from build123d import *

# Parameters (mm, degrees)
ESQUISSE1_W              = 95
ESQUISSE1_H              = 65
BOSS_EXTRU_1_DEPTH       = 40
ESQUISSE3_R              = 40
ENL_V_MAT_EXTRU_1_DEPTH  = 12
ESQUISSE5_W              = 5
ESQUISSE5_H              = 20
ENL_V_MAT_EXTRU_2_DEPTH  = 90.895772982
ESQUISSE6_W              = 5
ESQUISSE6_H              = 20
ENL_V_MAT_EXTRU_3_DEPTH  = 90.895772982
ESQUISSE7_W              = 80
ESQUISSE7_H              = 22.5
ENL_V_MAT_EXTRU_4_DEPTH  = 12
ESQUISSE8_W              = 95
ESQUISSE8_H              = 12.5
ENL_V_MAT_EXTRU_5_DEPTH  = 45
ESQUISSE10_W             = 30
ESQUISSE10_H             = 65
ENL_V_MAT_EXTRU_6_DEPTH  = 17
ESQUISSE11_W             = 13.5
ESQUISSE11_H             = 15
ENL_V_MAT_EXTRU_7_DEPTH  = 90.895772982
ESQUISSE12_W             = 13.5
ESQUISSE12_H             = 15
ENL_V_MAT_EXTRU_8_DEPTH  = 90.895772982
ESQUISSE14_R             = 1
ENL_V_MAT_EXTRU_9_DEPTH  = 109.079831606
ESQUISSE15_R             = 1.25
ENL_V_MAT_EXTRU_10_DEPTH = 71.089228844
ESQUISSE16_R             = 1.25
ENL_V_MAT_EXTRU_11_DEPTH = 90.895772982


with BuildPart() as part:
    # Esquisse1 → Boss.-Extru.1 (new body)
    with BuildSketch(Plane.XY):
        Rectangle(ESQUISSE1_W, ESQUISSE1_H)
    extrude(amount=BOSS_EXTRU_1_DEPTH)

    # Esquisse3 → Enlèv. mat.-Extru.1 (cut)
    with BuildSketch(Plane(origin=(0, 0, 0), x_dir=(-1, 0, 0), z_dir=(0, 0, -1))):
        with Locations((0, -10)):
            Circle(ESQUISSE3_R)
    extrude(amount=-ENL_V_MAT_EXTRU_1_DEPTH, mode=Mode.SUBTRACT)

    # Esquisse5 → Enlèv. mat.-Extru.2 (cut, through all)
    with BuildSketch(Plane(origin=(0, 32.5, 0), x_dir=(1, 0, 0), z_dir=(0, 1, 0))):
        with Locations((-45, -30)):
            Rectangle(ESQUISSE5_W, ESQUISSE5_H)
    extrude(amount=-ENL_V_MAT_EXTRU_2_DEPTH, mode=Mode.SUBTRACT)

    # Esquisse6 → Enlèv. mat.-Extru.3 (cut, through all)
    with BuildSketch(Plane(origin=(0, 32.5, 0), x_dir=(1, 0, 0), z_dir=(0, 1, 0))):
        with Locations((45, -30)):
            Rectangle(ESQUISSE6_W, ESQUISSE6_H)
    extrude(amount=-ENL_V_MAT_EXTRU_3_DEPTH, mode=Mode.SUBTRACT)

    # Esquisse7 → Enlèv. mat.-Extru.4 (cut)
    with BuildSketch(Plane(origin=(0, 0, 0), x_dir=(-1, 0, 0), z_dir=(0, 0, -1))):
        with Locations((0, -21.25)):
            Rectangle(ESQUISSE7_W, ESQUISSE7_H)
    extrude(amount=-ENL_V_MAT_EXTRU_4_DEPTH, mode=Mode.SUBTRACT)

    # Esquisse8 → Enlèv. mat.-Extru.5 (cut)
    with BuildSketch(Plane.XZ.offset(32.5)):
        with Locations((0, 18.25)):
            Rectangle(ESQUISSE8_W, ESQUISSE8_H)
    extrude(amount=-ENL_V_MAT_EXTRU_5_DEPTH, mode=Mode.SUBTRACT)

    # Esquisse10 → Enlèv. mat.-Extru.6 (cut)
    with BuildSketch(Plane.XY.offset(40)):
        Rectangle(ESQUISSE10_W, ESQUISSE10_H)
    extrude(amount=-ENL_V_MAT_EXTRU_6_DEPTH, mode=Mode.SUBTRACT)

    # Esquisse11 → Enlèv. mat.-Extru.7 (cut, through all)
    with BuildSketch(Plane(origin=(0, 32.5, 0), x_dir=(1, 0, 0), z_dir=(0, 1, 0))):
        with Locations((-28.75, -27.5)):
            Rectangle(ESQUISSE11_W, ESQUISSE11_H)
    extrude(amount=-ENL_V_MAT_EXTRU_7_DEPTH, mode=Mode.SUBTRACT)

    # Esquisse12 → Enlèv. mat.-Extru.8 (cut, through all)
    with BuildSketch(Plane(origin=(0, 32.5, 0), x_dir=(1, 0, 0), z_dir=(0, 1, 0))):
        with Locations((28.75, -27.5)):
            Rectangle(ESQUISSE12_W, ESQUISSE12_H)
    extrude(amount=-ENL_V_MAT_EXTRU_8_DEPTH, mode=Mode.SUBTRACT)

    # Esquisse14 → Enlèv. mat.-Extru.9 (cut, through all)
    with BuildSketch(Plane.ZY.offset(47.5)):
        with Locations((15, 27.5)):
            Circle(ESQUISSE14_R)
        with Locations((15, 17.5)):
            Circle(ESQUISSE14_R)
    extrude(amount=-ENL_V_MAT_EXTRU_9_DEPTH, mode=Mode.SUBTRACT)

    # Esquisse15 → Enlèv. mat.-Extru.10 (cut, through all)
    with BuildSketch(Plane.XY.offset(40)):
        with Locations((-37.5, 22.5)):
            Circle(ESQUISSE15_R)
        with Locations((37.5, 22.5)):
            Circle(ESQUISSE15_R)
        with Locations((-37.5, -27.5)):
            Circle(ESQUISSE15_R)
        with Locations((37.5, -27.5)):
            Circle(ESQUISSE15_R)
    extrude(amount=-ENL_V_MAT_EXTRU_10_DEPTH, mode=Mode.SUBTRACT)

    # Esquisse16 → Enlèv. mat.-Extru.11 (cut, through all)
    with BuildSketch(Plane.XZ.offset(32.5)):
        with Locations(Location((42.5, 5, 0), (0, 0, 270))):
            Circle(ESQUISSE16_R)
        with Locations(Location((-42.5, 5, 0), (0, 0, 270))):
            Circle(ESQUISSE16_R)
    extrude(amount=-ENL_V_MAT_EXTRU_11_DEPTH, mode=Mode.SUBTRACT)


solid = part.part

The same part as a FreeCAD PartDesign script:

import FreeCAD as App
import Part
import Sketcher
Q = App.Units.Quantity

doc = App.newDocument("Part")
params = doc.addObject("Spreadsheet::Sheet", "Params")
for row, (alias, value) in enumerate([
    ("sketch1_width", "95 mm"),
    ("sketch1_height", "65 mm"),
    ("pad1_length", "40 mm"),
    ("sketch2_diameter", "80 mm"),
    ("pocket1_length", "12 mm"),
    ("sketch3_width", "5 mm"),
    ("sketch3_height", "20 mm"),
    ("sketch4_width", "5 mm"),
    ("sketch4_height", "20 mm"),
    ("sketch5_width", "80 mm"),
    ("sketch5_height", "22.5 mm"),
    ("pocket4_length", "12 mm"),
    ("sketch6_width", "95 mm"),
    ("sketch6_height", "12.5 mm"),
    ("pocket5_length", "45 mm"),
    ("sketch7_width", "30 mm"),
    ("sketch7_height", "65 mm"),
    ("pocket6_length", "17 mm"),
    ("sketch8_height", "15 mm"),
    ("sketch8_width", "13.5 mm"),
    ("sketch9_height", "15 mm"),
    ("sketch9_width", "13.5 mm"),
    ("sketch10_diameter", "2 mm"),
    ("sketch11_diameter", "2.5 mm"),
    ("sketch12_diameter", "2.5 mm"),
], start=1):
    params.set(f"A{row}", alias)
    params.set(f"B{row}", "=" + value)
    params.setAlias(f"B{row}", alias)

body = doc.addObject("PartDesign::Body", "Body")

sketch1 = doc.addObject("Sketcher::SketchObject", "Sketch")
body.addObject(sketch1)
sketch1.AttachmentSupport = (doc.XY_Plane, [""])
sketch1.MapMode = "FlatFace"
sketch1.addGeometry(Part.LineSegment(App.Vector(-48, 32, 0), App.Vector(-48, -32, 0)), False)
sketch1.addGeometry(Part.LineSegment(App.Vector(-48, -32, 0), App.Vector(48, -32, 0)), False)
sketch1.addGeometry(Part.LineSegment(App.Vector(48, -32, 0), App.Vector(48, 32, 0)), False)
sketch1.addGeometry(Part.LineSegment(App.Vector(48, 32, 0), App.Vector(-48, 32, 0)), False)
sketch1.addConstraint(Sketcher.Constraint("Coincident", 0, 2, 1, 1))
sketch1.addConstraint(Sketcher.Constraint("Coincident", 1, 2, 2, 1))
sketch1.addConstraint(Sketcher.Constraint("Coincident", 2, 2, 3, 1))
sketch1.addConstraint(Sketcher.Constraint("Coincident", 3, 2, 0, 1))
sketch1.addConstraint(Sketcher.Constraint("Vertical", 0))
sketch1.addConstraint(Sketcher.Constraint("Horizontal", 1))
sketch1.addConstraint(Sketcher.Constraint("Vertical", 2))
sketch1.addConstraint(Sketcher.Constraint("Horizontal", 3))
sketch1.addConstraint(Sketcher.Constraint("Symmetric", 0, 2, 2, 2, -1, 1))
sketch1.addConstraint(Sketcher.Constraint("DistanceX", 1, 1, 1, 2, Q("95 mm")))
sketch1.addConstraint(Sketcher.Constraint("DistanceY", 0, 2, 0, 1, Q("65 mm")))
sketch1.setExpression("Constraints[9]", "Params.sketch1_width")
sketch1.setExpression("Constraints[10]", "Params.sketch1_height")
pad1 = doc.addObject("PartDesign::Pad", "Pad")
body.addObject(pad1)
pad1.Profile = sketch1
pad1.setExpression("Length", "Params.pad1_length")

sketch2 = doc.addObject("Sketcher::SketchObject", "Sketch001")
body.addObject(sketch2)
sketch2.AttachmentSupport = (doc.XY_Plane, [""])
sketch2.MapMode = "FlatFace"
sketch2.addGeometry(Part.Circle(App.Vector(0, -10, 0), App.Vector(0, 0, 1), 40), False)
sketch2.addConstraint(Sketcher.Constraint("PointOnObject", 0, 3, -2))
sketch2.addConstraint(Sketcher.Constraint("Diameter", 0, Q("80 mm")))
sketch2.addConstraint(Sketcher.Constraint("DistanceY", 0, 3, -1, 1, Q("10 mm")))
sketch2.setExpression("Constraints[1]", "Params.sketch2_diameter")
pocket1 = doc.addObject("PartDesign::Pocket", "Pocket")
body.addObject(pocket1)
pocket1.Profile = sketch2
pocket1.setExpression("Length", "Params.pocket1_length")
pocket1.Reversed = True

sketch3 = doc.addObject("Sketcher::SketchObject", "Sketch002")
body.addObject(sketch3)
sketch3.AttachmentSupport = (doc.XZ_Plane, [""])
sketch3.MapMode = "FlatFace"
sketch3.AttachmentOffset = App.Placement(App.Vector(0, 0, -32.5), App.Rotation())
sketch3.addGeometry(Part.LineSegment(App.Vector(-48, 20, 0), App.Vector(-48, 40, 0)), False)
sketch3.addGeometry(Part.LineSegment(App.Vector(-48, 40, 0), App.Vector(-42, 40, 0)), False)
sketch3.addGeometry(Part.LineSegment(App.Vector(-42, 40, 0), App.Vector(-42, 20, 0)), False)
sketch3.addGeometry(Part.LineSegment(App.Vector(-42, 20, 0), App.Vector(-48, 20, 0)), False)
sketch3.addConstraint(Sketcher.Constraint("Coincident", 0, 2, 1, 1))
sketch3.addConstraint(Sketcher.Constraint("Coincident", 1, 2, 2, 1))
sketch3.addConstraint(Sketcher.Constraint("Coincident", 2, 2, 3, 1))
sketch3.addConstraint(Sketcher.Constraint("Coincident", 3, 2, 0, 1))
sketch3.addConstraint(Sketcher.Constraint("Vertical", 0))
sketch3.addConstraint(Sketcher.Constraint("Horizontal", 1))
sketch3.addConstraint(Sketcher.Constraint("Vertical", 2))
sketch3.addConstraint(Sketcher.Constraint("Horizontal", 3))
sketch3.addConstraint(Sketcher.Constraint("DistanceX", 1, 1, 1, 2, Q("5 mm")))
sketch3.addConstraint(Sketcher.Constraint("DistanceY", 0, 1, 0, 2, Q("20 mm")))
sketch3.addConstraint(Sketcher.Constraint("DistanceY", -1, 1, 0, 2, Q("40 mm")))
sketch3.addConstraint(Sketcher.Constraint("DistanceX", 0, 2, -1, 1, Q("47.5 mm")))
sketch3.setExpression("Constraints[8]", "Params.sketch3_width")
sketch3.setExpression("Constraints[9]", "Params.sketch3_height")
pocket2 = doc.addObject("PartDesign::Pocket", "Pocket001")
body.addObject(pocket2)
pocket2.Profile = sketch3
pocket2.Type = "ThroughAll"
pocket2.Reversed = True

sketch4 = doc.addObject("Sketcher::SketchObject", "Sketch003")
body.addObject(sketch4)
sketch4.AttachmentSupport = (doc.XZ_Plane, [""])
sketch4.MapMode = "FlatFace"
sketch4.AttachmentOffset = App.Placement(App.Vector(0, 0, -32.5), App.Rotation())
sketch4.addGeometry(Part.LineSegment(App.Vector(42, 20, 0), App.Vector(42, 40, 0)), False)
sketch4.addGeometry(Part.LineSegment(App.Vector(42, 40, 0), App.Vector(48, 40, 0)), False)
sketch4.addGeometry(Part.LineSegment(App.Vector(48, 40, 0), App.Vector(48, 20, 0)), False)
sketch4.addGeometry(Part.LineSegment(App.Vector(48, 20, 0), App.Vector(42, 20, 0)), False)
sketch4.addConstraint(Sketcher.Constraint("Coincident", 0, 2, 1, 1))
sketch4.addConstraint(Sketcher.Constraint("Coincident", 1, 2, 2, 1))
sketch4.addConstraint(Sketcher.Constraint("Coincident", 2, 2, 3, 1))
sketch4.addConstraint(Sketcher.Constraint("Coincident", 3, 2, 0, 1))
sketch4.addConstraint(Sketcher.Constraint("Vertical", 0))
sketch4.addConstraint(Sketcher.Constraint("Horizontal", 1))
sketch4.addConstraint(Sketcher.Constraint("Vertical", 2))
sketch4.addConstraint(Sketcher.Constraint("Horizontal", 3))
sketch4.addConstraint(Sketcher.Constraint("DistanceX", 1, 1, 1, 2, Q("5 mm")))
sketch4.addConstraint(Sketcher.Constraint("DistanceY", 0, 1, 0, 2, Q("20 mm")))
sketch4.addConstraint(Sketcher.Constraint("DistanceY", -1, 1, 0, 2, Q("40 mm")))
sketch4.addConstraint(Sketcher.Constraint("DistanceX", -1, 1, 0, 2, Q("42.5 mm")))
sketch4.setExpression("Constraints[8]", "Params.sketch4_width")
sketch4.setExpression("Constraints[9]", "Params.sketch4_height")
pocket3 = doc.addObject("PartDesign::Pocket", "Pocket002")
body.addObject(pocket3)
pocket3.Profile = sketch4
pocket3.Type = "ThroughAll"
pocket3.Reversed = True

sketch5 = doc.addObject("Sketcher::SketchObject", "Sketch004")
body.addObject(sketch5)
sketch5.AttachmentSupport = (doc.XY_Plane, [""])
sketch5.MapMode = "FlatFace"
sketch5.addGeometry(Part.LineSegment(App.Vector(40, -10, 0), App.Vector(40, -32, 0)), False)
sketch5.addGeometry(Part.LineSegment(App.Vector(40, -32, 0), App.Vector(-40, -32, 0)), False)
sketch5.addGeometry(Part.LineSegment(App.Vector(-40, -32, 0), App.Vector(-40, -10, 0)), False)
sketch5.addGeometry(Part.LineSegment(App.Vector(-40, -10, 0), App.Vector(40, -10, 0)), False)
sketch5.addConstraint(Sketcher.Constraint("Coincident", 0, 2, 1, 1))
sketch5.addConstraint(Sketcher.Constraint("Coincident", 1, 2, 2, 1))
sketch5.addConstraint(Sketcher.Constraint("Coincident", 2, 2, 3, 1))
sketch5.addConstraint(Sketcher.Constraint("Coincident", 3, 2, 0, 1))
sketch5.addConstraint(Sketcher.Constraint("Vertical", 0))
sketch5.addConstraint(Sketcher.Constraint("Horizontal", 1))
sketch5.addConstraint(Sketcher.Constraint("Vertical", 2))
sketch5.addConstraint(Sketcher.Constraint("Horizontal", 3))
sketch5.addConstraint(Sketcher.Constraint("DistanceX", 1, 2, 1, 1, Q("80 mm")))
sketch5.addConstraint(Sketcher.Constraint("DistanceY", 0, 2, 0, 1, Q("22.5 mm")))
sketch5.addConstraint(Sketcher.Constraint("DistanceX", -1, 1, 0, 2, Q("40 mm")))
sketch5.addConstraint(Sketcher.Constraint("DistanceY", 2, 2, -1, 1, Q("10 mm")))
sketch5.setExpression("Constraints[8]", "Params.sketch5_width")
sketch5.setExpression("Constraints[9]", "Params.sketch5_height")
pocket4 = doc.addObject("PartDesign::Pocket", "Pocket003")
body.addObject(pocket4)
pocket4.Profile = sketch5
pocket4.setExpression("Length", "Params.pocket4_length")
pocket4.Reversed = True

sketch6 = doc.addObject("Sketcher::SketchObject", "Sketch005")
body.addObject(sketch6)
sketch6.AttachmentSupport = (doc.XZ_Plane, [""])
sketch6.MapMode = "FlatFace"
sketch6.AttachmentOffset = App.Placement(App.Vector(0, 0, 32.5), App.Rotation())
sketch6.addGeometry(Part.LineSegment(App.Vector(-48, 24, 0), App.Vector(-48, 12, 0)), False)
sketch6.addGeometry(Part.LineSegment(App.Vector(-48, 12, 0), App.Vector(48, 12, 0)), False)
sketch6.addGeometry(Part.LineSegment(App.Vector(48, 12, 0), App.Vector(48, 24, 0)), False)
sketch6.addGeometry(Part.LineSegment(App.Vector(48, 24, 0), App.Vector(-48, 24, 0)), False)
sketch6.addConstraint(Sketcher.Constraint("Coincident", 0, 2, 1, 1))
sketch6.addConstraint(Sketcher.Constraint("Coincident", 1, 2, 2, 1))
sketch6.addConstraint(Sketcher.Constraint("Coincident", 2, 2, 3, 1))
sketch6.addConstraint(Sketcher.Constraint("Coincident", 3, 2, 0, 1))
sketch6.addConstraint(Sketcher.Constraint("Vertical", 0))
sketch6.addConstraint(Sketcher.Constraint("Horizontal", 1))
sketch6.addConstraint(Sketcher.Constraint("Vertical", 2))
sketch6.addConstraint(Sketcher.Constraint("Horizontal", 3))
sketch6.addConstraint(Sketcher.Constraint("DistanceX", 1, 1, 1, 2, Q("95 mm")))
sketch6.addConstraint(Sketcher.Constraint("DistanceY", 0, 2, 0, 1, Q("12.5 mm")))
sketch6.addConstraint(Sketcher.Constraint("DistanceY", -1, 1, 0, 2, Q("12 mm")))
sketch6.addConstraint(Sketcher.Constraint("DistanceX", 0, 2, -1, 1, Q("47.5 mm")))
sketch6.setExpression("Constraints[8]", "Params.sketch6_width")
sketch6.setExpression("Constraints[9]", "Params.sketch6_height")
pocket5 = doc.addObject("PartDesign::Pocket", "Pocket004")
body.addObject(pocket5)
pocket5.Profile = sketch6
pocket5.setExpression("Length", "Params.pocket5_length")

sketch7 = doc.addObject("Sketcher::SketchObject", "Sketch006")
body.addObject(sketch7)
sketch7.AttachmentSupport = (doc.XY_Plane, [""])
sketch7.MapMode = "FlatFace"
sketch7.AttachmentOffset = App.Placement(App.Vector(0, 0, 40), App.Rotation())
sketch7.addGeometry(Part.LineSegment(App.Vector(-15, 32, 0), App.Vector(-15, -32, 0)), False)
sketch7.addGeometry(Part.LineSegment(App.Vector(-15, -32, 0), App.Vector(15, -32, 0)), False)
sketch7.addGeometry(Part.LineSegment(App.Vector(15, -32, 0), App.Vector(15, 32, 0)), False)
sketch7.addGeometry(Part.LineSegment(App.Vector(15, 32, 0), App.Vector(-15, 32, 0)), False)
sketch7.addConstraint(Sketcher.Constraint("Coincident", 0, 2, 1, 1))
sketch7.addConstraint(Sketcher.Constraint("Coincident", 1, 2, 2, 1))
sketch7.addConstraint(Sketcher.Constraint("Coincident", 2, 2, 3, 1))
sketch7.addConstraint(Sketcher.Constraint("Coincident", 3, 2, 0, 1))
sketch7.addConstraint(Sketcher.Constraint("Vertical", 0))
sketch7.addConstraint(Sketcher.Constraint("Horizontal", 1))
sketch7.addConstraint(Sketcher.Constraint("Vertical", 2))
sketch7.addConstraint(Sketcher.Constraint("Horizontal", 3))
sketch7.addConstraint(Sketcher.Constraint("Symmetric", 0, 2, 2, 2, -1, 1))
sketch7.addConstraint(Sketcher.Constraint("DistanceX", 1, 1, 1, 2, Q("30 mm")))
sketch7.addConstraint(Sketcher.Constraint("DistanceY", 0, 2, 0, 1, Q("65 mm")))
sketch7.setExpression("Constraints[9]", "Params.sketch7_width")
sketch7.setExpression("Constraints[10]", "Params.sketch7_height")
pocket6 = doc.addObject("PartDesign::Pocket", "Pocket005")
body.addObject(pocket6)
pocket6.Profile = sketch7
pocket6.setExpression("Length", "Params.pocket6_length")

sketch8 = doc.addObject("Sketcher::SketchObject", "Sketch007")
body.addObject(sketch8)
sketch8.AttachmentSupport = (doc.XZ_Plane, [""])
sketch8.MapMode = "FlatFace"
sketch8.AttachmentOffset = App.Placement(App.Vector(0, 0, -32.5), App.Rotation())
sketch8.addGeometry(Part.LineSegment(App.Vector(-36, 20, 0), App.Vector(-36, 35, 0)), False)
sketch8.addGeometry(Part.LineSegment(App.Vector(-36, 35, 0), App.Vector(-22, 35, 0)), False)
sketch8.addGeometry(Part.LineSegment(App.Vector(-22, 35, 0), App.Vector(-22, 20, 0)), False)
sketch8.addGeometry(Part.LineSegment(App.Vector(-22, 20, 0), App.Vector(-36, 20, 0)), False)
sketch8.addConstraint(Sketcher.Constraint("Coincident", 0, 2, 1, 1))
sketch8.addConstraint(Sketcher.Constraint("Coincident", 1, 2, 2, 1))
sketch8.addConstraint(Sketcher.Constraint("Coincident", 2, 2, 3, 1))
sketch8.addConstraint(Sketcher.Constraint("Coincident", 3, 2, 0, 1))
sketch8.addConstraint(Sketcher.Constraint("Vertical", 0))
sketch8.addConstraint(Sketcher.Constraint("Horizontal", 1))
sketch8.addConstraint(Sketcher.Constraint("Vertical", 2))
sketch8.addConstraint(Sketcher.Constraint("Horizontal", 3))
sketch8.addConstraint(Sketcher.Constraint("DistanceY", 0, 1, 0, 2, Q("15 mm")))
sketch8.addConstraint(Sketcher.Constraint("DistanceX", 1, 1, 1, 2, Q("13.5 mm")))
sketch8.addConstraint(Sketcher.Constraint("DistanceY", -1, 1, 0, 2, Q("35 mm")))
sketch8.addConstraint(Sketcher.Constraint("DistanceX", 1, 2, -1, 1, Q("22 mm")))
sketch8.setExpression("Constraints[8]", "Params.sketch8_height")
sketch8.setExpression("Constraints[9]", "Params.sketch8_width")
pocket7 = doc.addObject("PartDesign::Pocket", "Pocket006")
body.addObject(pocket7)
pocket7.Profile = sketch8
pocket7.Type = "ThroughAll"
pocket7.Reversed = True

sketch9 = doc.addObject("Sketcher::SketchObject", "Sketch008")
body.addObject(sketch9)
sketch9.AttachmentSupport = (doc.XZ_Plane, [""])
sketch9.MapMode = "FlatFace"
sketch9.AttachmentOffset = App.Placement(App.Vector(0, 0, -32.5), App.Rotation())
sketch9.addGeometry(Part.LineSegment(App.Vector(22, 20, 0), App.Vector(22, 35, 0)), False)
sketch9.addGeometry(Part.LineSegment(App.Vector(22, 35, 0), App.Vector(36, 35, 0)), False)
sketch9.addGeometry(Part.LineSegment(App.Vector(36, 35, 0), App.Vector(36, 20, 0)), False)
sketch9.addGeometry(Part.LineSegment(App.Vector(36, 20, 0), App.Vector(22, 20, 0)), False)
sketch9.addConstraint(Sketcher.Constraint("Coincident", 0, 2, 1, 1))
sketch9.addConstraint(Sketcher.Constraint("Coincident", 1, 2, 2, 1))
sketch9.addConstraint(Sketcher.Constraint("Coincident", 2, 2, 3, 1))
sketch9.addConstraint(Sketcher.Constraint("Coincident", 3, 2, 0, 1))
sketch9.addConstraint(Sketcher.Constraint("Vertical", 0))
sketch9.addConstraint(Sketcher.Constraint("Horizontal", 1))
sketch9.addConstraint(Sketcher.Constraint("Vertical", 2))
sketch9.addConstraint(Sketcher.Constraint("Horizontal", 3))
sketch9.addConstraint(Sketcher.Constraint("DistanceY", 0, 1, 0, 2, Q("15 mm")))
sketch9.addConstraint(Sketcher.Constraint("DistanceX", 1, 1, 1, 2, Q("13.5 mm")))
sketch9.addConstraint(Sketcher.Constraint("DistanceX", -1, 1, 0, 2, Q("22 mm")))
sketch9.addConstraint(Sketcher.Constraint("DistanceY", -1, 1, 0, 2, Q("35 mm")))
sketch9.setExpression("Constraints[8]", "Params.sketch9_height")
sketch9.setExpression("Constraints[9]", "Params.sketch9_width")
pocket8 = doc.addObject("PartDesign::Pocket", "Pocket007")
body.addObject(pocket8)
pocket8.Profile = sketch9
pocket8.Type = "ThroughAll"
pocket8.Reversed = True

sketch10 = doc.addObject("Sketcher::SketchObject", "Sketch009")
body.addObject(sketch10)
sketch10.AttachmentSupport = (doc.YZ_Plane, [""])
sketch10.MapMode = "FlatFace"
sketch10.AttachmentOffset = App.Placement(App.Vector(0, 0, -47.5), App.Rotation())
sketch10.addGeometry(Part.Circle(App.Vector(27.5, 15, 0), App.Vector(0, 0, 1), 1), False)
sketch10.addGeometry(Part.Circle(App.Vector(17.5, 15, 0), App.Vector(0, 0, 1), 1), False)
sketch10.addConstraint(Sketcher.Constraint("Equal", 0, 1))
sketch10.addConstraint(Sketcher.Constraint("Horizontal", 0, 3, 1, 3))
sketch10.addConstraint(Sketcher.Constraint("Diameter", 0, Q("2 mm")))
sketch10.addConstraint(Sketcher.Constraint("DistanceY", -1, 1, 0, 3, Q("15 mm")))
sketch10.addConstraint(Sketcher.Constraint("DistanceX", 1, 3, 0, 3, Q("10 mm")))
sketch10.addConstraint(Sketcher.Constraint("DistanceX", -1, 1, 0, 3, Q("27.5 mm")))
sketch10.setExpression("Constraints[2]", "Params.sketch10_diameter")
pocket9 = doc.addObject("PartDesign::Pocket", "Pocket008")
body.addObject(pocket9)
pocket9.Profile = sketch10
pocket9.Type = "ThroughAll"
pocket9.Reversed = True

sketch11 = doc.addObject("Sketcher::SketchObject", "Sketch010")
body.addObject(sketch11)
sketch11.AttachmentSupport = (doc.XY_Plane, [""])
sketch11.MapMode = "FlatFace"
sketch11.AttachmentOffset = App.Placement(App.Vector(0, 0, 40), App.Rotation())
sketch11.addGeometry(Part.Circle(App.Vector(-37.5, 22.5, 0), App.Vector(0, 0, 1), 1.2), False)
sketch11.addGeometry(Part.Circle(App.Vector(37.5, 22.5, 0), App.Vector(0, 0, 1), 1.2), False)
sketch11.addGeometry(Part.Circle(App.Vector(-37.5, -27.5, 0), App.Vector(0, 0, 1), 1.2), False)
sketch11.addGeometry(Part.Circle(App.Vector(37.5, -27.5, 0), App.Vector(0, 0, 1), 1.2), False)
sketch11.addConstraint(Sketcher.Constraint("Equal", 0, 1))
sketch11.addConstraint(Sketcher.Constraint("Equal", 1, 2))
sketch11.addConstraint(Sketcher.Constraint("Equal", 2, 3))
sketch11.addConstraint(Sketcher.Constraint("Symmetric", 0, 3, 1, 3, -2))
sketch11.addConstraint(Sketcher.Constraint("Symmetric", 2, 3, 3, 3, -2))
sketch11.addConstraint(Sketcher.Constraint("Vertical", 0, 3, 2, 3))
sketch11.addConstraint(Sketcher.Constraint("Diameter", 0, Q("2.5 mm")))
sketch11.addConstraint(Sketcher.Constraint("DistanceX", 0, 3, 1, 3, Q("75 mm")))
sketch11.addConstraint(Sketcher.Constraint("DistanceY", 2, 3, 0, 3, Q("50 mm")))
sketch11.addConstraint(Sketcher.Constraint("DistanceY", -1, 1, 0, 3, Q("22.5 mm")))
sketch11.setExpression("Constraints[6]", "Params.sketch11_diameter")
pocket10 = doc.addObject("PartDesign::Pocket", "Pocket009")
body.addObject(pocket10)
pocket10.Profile = sketch11
pocket10.Type = "ThroughAll"

sketch12 = doc.addObject("Sketcher::SketchObject", "Sketch011")
body.addObject(sketch12)
sketch12.AttachmentSupport = (doc.XZ_Plane, [""])
sketch12.MapMode = "FlatFace"
sketch12.AttachmentOffset = App.Placement(App.Vector(0, 0, 32.5), App.Rotation())
sketch12.addGeometry(Part.Circle(App.Vector(42.5, 5, 0), App.Vector(0, 0, 1), 1.2), False)
sketch12.addGeometry(Part.Circle(App.Vector(-42.5, 5, 0), App.Vector(0, 0, 1), 1.2), False)
sketch12.addConstraint(Sketcher.Constraint("Equal", 0, 1))
sketch12.addConstraint(Sketcher.Constraint("Symmetric", 0, 3, 1, 3, -2))
sketch12.addConstraint(Sketcher.Constraint("Diameter", 0, Q("2.5 mm")))
sketch12.addConstraint(Sketcher.Constraint("DistanceY", -1, 1, 0, 3, Q("5 mm")))
sketch12.addConstraint(Sketcher.Constraint("DistanceX", 1, 3, 0, 3, Q("85 mm")))
sketch12.setExpression("Constraints[2]", "Params.sketch12_diameter")
pocket11 = doc.addObject("PartDesign::Pocket", "Pocket010")
body.addObject(pocket11)
pocket11.Profile = sketch12
pocket11.Type = "ThroughAll"

doc.recompute()
